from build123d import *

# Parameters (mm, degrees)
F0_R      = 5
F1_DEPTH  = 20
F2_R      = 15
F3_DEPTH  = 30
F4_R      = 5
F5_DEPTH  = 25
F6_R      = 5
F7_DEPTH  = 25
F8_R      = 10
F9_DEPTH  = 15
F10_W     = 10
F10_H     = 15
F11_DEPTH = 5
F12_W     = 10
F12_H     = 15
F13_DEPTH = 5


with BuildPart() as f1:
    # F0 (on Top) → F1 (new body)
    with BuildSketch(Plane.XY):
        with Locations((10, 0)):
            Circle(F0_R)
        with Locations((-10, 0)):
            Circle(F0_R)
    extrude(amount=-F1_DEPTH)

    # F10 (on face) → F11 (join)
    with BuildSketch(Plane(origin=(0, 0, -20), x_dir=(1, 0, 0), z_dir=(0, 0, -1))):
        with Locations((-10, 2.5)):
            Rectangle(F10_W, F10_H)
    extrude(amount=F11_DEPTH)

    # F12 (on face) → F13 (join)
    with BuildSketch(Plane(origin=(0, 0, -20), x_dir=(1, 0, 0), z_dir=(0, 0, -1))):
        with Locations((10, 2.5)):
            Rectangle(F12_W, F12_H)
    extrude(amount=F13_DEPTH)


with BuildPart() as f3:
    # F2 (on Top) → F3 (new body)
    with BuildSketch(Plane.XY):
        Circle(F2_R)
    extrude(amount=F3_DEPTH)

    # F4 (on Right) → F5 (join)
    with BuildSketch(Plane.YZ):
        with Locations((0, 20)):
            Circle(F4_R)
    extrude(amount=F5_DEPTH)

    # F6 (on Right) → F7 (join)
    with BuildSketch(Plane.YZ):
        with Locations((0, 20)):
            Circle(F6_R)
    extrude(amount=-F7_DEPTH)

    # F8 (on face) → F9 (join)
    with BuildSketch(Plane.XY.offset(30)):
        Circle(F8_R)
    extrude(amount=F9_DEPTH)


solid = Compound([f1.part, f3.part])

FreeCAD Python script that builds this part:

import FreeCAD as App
import Part
import Sketcher

V = App.Vector
Q = App.Units.Quantity


def add_polygon(sketch, points):
    """Adds a closed chain of lines whose ends are joined by coincident constraints."""
    first, n = sketch.GeometryCount, len(points)
    for a, b in zip(points, points[1:] + points[:1]):
        sketch.addGeometry(Part.LineSegment(App.Vector(*a, 0), App.Vector(*b, 0)), False)
    for i in range(n):
        sketch.addConstraint(Sketcher.Constraint("Coincident", first + i, 2, first + (i + 1) % n, 1))

doc = App.newDocument("Part")
params = doc.addObject("Spreadsheet::Sheet", "Params")
for row, (alias, value) in enumerate([
    ("sketch1_diameter", "10 mm"),
    ("pad1_length", "20 mm"),
    ("sketch2_width", "10 mm"),
    ("sketch2_height", "15 mm"),
    ("pad2_length", "5 mm"),
    ("sketch3_width", "10 mm"),
    ("sketch3_height", "15 mm"),
    ("pad3_length", "5 mm"),
    ("sketch4_diameter", "30 mm"),
    ("pad4_length", "30 mm"),
    ("sketch5_diameter", "10 mm"),
    ("pad5_length", "25 mm"),
    ("sketch6_diameter", "10 mm"),
    ("pad6_length", "25 mm"),
    ("sketch7_diameter", "20 mm"),
    ("pad7_length", "15 mm"),
], start=1):
    params.set(f"A{row}", alias)
    params.set(f"B{row}", "=" + value)
    params.setAlias(f"B{row}", alias)

body = doc.addObject("PartDesign::Body", "Body")
body.AllowCompound = True

# Sketch on XY plane
sketch1 = doc.addObject("Sketcher::SketchObject", "Sketch")
body.addObject(sketch1)
sketch1.AttachmentSupport = (doc.XY_Plane, [""])
sketch1.MapMode = "FlatFace"
sketch1.addGeometry(Part.Circle(V(10, 0, 0), V(0, 0, 1), 5), False)
sketch1.addGeometry(Part.Circle(V(-10, 0, 0), V(0, 0, 1), 5), False)
sketch1.addConstraint(Sketcher.Constraint("Equal", 0, 1))
sketch1.addConstraint(Sketcher.Constraint("Symmetric", 0, 3, 1, 3, -1, 1))
sketch1.addConstraint(Sketcher.Constraint("PointOnObject", 0, 3, -1))
sketch1.addConstraint(Sketcher.Constraint("Diameter", 0, Q("10 mm")))
sketch1.addConstraint(Sketcher.Constraint("DistanceX", -1, 1, 0, 3, Q("10 mm")))
sketch1.setExpression("Constraints[3]", "Params.sketch1_diameter")
pad1 = doc.addObject("PartDesign::Pad", "Pad")
body.addObject(pad1)
pad1.Profile = sketch1
pad1.setExpression("Length", "Params.pad1_length")
pad1.Reversed = True

# Sketch on XY plane
sketch2 = doc.addObject("Sketcher::SketchObject", "Sketch001")
body.addObject(sketch2)
sketch2.AttachmentSupport = (doc.XY_Plane, [""])
sketch2.MapMode = "FlatFace"
sketch2.AttachmentOffset = App.Placement(V(0, 0, -20), App.Rotation())
add_polygon(sketch2, [(-15, -10), (-15, 5), (-5, 5), (-5, -10)])  # lines 0-3
sketch2.addConstraint(Sketcher.Constraint("Vertical", 0))
sketch2.addConstraint(Sketcher.Constraint("Horizontal", 1))
sketch2.addConstraint(Sketcher.Constraint("Vertical", 2))
sketch2.addConstraint(Sketcher.Constraint("Horizontal", 3))
sketch2.addConstraint(Sketcher.Constraint("DistanceX", 1, 1, 1, 2, Q("10 mm")))
sketch2.addConstraint(Sketcher.Constraint("DistanceY", 0, 1, 0, 2, Q("15 mm")))
sketch2.addConstraint(Sketcher.Constraint("DistanceX", 0, 2, -1, 1, Q("15 mm")))
sketch2.addConstraint(Sketcher.Constraint("DistanceY", -1, 1, 0, 2, Q("5 mm")))
sketch2.setExpression("Constraints[8]", "Params.sketch2_width")
sketch2.setExpression("Constraints[9]", "Params.sketch2_height")
pad2 = doc.addObject("PartDesign::Pad", "Pad001")
body.addObject(pad2)
pad2.Profile = sketch2
pad2.setExpression("Length", "Params.pad2_length")
pad2.Reversed = True

# Sketch on XY plane
sketch3 = doc.addObject("Sketcher::SketchObject", "Sketch002")
body.addObject(sketch3)
sketch3.AttachmentSupport = (doc.XY_Plane, [""])
sketch3.MapMode = "FlatFace"
sketch3.AttachmentOffset = App.Placement(V(0, 0, -20), App.Rotation())
add_polygon(sketch3, [(5, -10), (5, 5), (15, 5), (15, -10)])  # lines 0-3
sketch3.addConstraint(Sketcher.Constraint("Vertical", 0))
sketch3.addConstraint(Sketcher.Constraint("Horizontal", 1))
sketch3.addConstraint(Sketcher.Constraint("Vertical", 2))
sketch3.addConstraint(Sketcher.Constraint("Horizontal", 3))
sketch3.addConstraint(Sketcher.Constraint("DistanceX", 1, 1, 1, 2, Q("10 mm")))
sketch3.addConstraint(Sketcher.Constraint("DistanceY", 0, 1, 0, 2, Q("15 mm")))
sketch3.addConstraint(Sketcher.Constraint("DistanceX", -1, 1, 0, 2, Q("5 mm")))
sketch3.addConstraint(Sketcher.Constraint("DistanceY", -1, 1, 0, 2, Q("5 mm")))
sketch3.setExpression("Constraints[8]", "Params.sketch3_width")
sketch3.setExpression("Constraints[9]", "Params.sketch3_height")
pad3 = doc.addObject("PartDesign::Pad", "Pad002")
body.addObject(pad3)
pad3.Profile = sketch3
pad3.setExpression("Length", "Params.pad3_length")
pad3.Reversed = True
body2 = doc.addObject("PartDesign::Body", "Body001")

# Sketch on XY plane
sketch4 = doc.addObject("Sketcher::SketchObject", "Sketch003")
body2.addObject(sketch4)
sketch4.AttachmentSupport = (doc.getObject("XY_Plane001"), [""])
sketch4.MapMode = "FlatFace"
sketch4.addGeometry(Part.Circle(V(0, 0, 0), V(0, 0, 1), 15), False)
sketch4.addConstraint(Sketcher.Constraint("Coincident", 0, 3, -1, 1))
sketch4.addConstraint(Sketcher.Constraint("Diameter", 0, Q("30 mm")))
sketch4.setExpression("Constraints[1]", "Params.sketch4_diameter")
pad4 = doc.addObject("PartDesign::Pad", "Pad003")
body2.addObject(pad4)
pad4.Profile = sketch4
pad4.setExpression("Length", "Params.pad4_length")

# Sketch on YZ plane
sketch5 = doc.addObject("Sketcher::SketchObject", "Sketch004")
body2.addObject(sketch5)
sketch5.AttachmentSupport = (doc.getObject("YZ_Plane001"), [""])
sketch5.MapMode = "FlatFace"
sketch5.addGeometry(Part.Circle(V(0, 20, 0), V(0, 0, 1), 5), False)
sketch5.addConstraint(Sketcher.Constraint("PointOnObject", 0, 3, -2))
sketch5.addConstraint(Sketcher.Constraint("Diameter", 0, Q("10 mm")))
sketch5.addConstraint(Sketcher.Constraint("DistanceY", -1, 1, 0, 3, Q("20 mm")))
sketch5.setExpression("Constraints[1]", "Params.sketch5_diameter")
pad5 = doc.addObject("PartDesign::Pad", "Pad004")
body2.addObject(pad5)
pad5.Profile = sketch5
pad5.setExpression("Length", "Params.pad5_length")

# Sketch on YZ plane
sketch6 = doc.addObject("Sketcher::SketchObject", "Sketch005")
body2.addObject(sketch6)
sketch6.AttachmentSupport = (doc.getObject("YZ_Plane001"), [""])
sketch6.MapMode = "FlatFace"
sketch6.addGeometry(Part.Circle(V(0, 20, 0), V(0, 0, 1), 5), False)
sketch6.addConstraint(Sketcher.Constraint("PointOnObject", 0, 3, -2))
sketch6.addConstraint(Sketcher.Constraint("Diameter", 0, Q("10 mm")))
sketch6.addConstraint(Sketcher.Constraint("DistanceY", -1, 1, 0, 3, Q("20 mm")))
sketch6.setExpression("Constraints[1]", "Params.sketch6_diameter")
pad6 = doc.addObject("PartDesign::Pad", "Pad005")
body2.addObject(pad6)
pad6.Profile = sketch6
pad6.setExpression("Length", "Params.pad6_length")
pad6.Reversed = True

# Sketch on XY plane
sketch7 = doc.addObject("Sketcher::SketchObject", "Sketch006")
body2.addObject(sketch7)
sketch7.AttachmentSupport = (doc.getObject("XY_Plane001"), [""])
sketch7.MapMode = "FlatFace"
sketch7.AttachmentOffset = App.Placement(V(0, 0, 30), App.Rotation())
sketch7.addGeometry(Part.Circle(V(0, 0, 0), V(0, 0, 1), 10), False)
sketch7.addConstraint(Sketcher.Constraint("Coincident", 0, 3, -1, 1))
sketch7.addConstraint(Sketcher.Constraint("Diameter", 0, Q("20 mm")))
sketch7.setExpression("Constraints[1]", "Params.sketch7_diameter")
pad7 = doc.addObject("PartDesign::Pad", "Pad006")
body2.addObject(pad7)
pad7.Profile = sketch7
pad7.setExpression("Length", "Params.pad7_length")

doc.recompute()
